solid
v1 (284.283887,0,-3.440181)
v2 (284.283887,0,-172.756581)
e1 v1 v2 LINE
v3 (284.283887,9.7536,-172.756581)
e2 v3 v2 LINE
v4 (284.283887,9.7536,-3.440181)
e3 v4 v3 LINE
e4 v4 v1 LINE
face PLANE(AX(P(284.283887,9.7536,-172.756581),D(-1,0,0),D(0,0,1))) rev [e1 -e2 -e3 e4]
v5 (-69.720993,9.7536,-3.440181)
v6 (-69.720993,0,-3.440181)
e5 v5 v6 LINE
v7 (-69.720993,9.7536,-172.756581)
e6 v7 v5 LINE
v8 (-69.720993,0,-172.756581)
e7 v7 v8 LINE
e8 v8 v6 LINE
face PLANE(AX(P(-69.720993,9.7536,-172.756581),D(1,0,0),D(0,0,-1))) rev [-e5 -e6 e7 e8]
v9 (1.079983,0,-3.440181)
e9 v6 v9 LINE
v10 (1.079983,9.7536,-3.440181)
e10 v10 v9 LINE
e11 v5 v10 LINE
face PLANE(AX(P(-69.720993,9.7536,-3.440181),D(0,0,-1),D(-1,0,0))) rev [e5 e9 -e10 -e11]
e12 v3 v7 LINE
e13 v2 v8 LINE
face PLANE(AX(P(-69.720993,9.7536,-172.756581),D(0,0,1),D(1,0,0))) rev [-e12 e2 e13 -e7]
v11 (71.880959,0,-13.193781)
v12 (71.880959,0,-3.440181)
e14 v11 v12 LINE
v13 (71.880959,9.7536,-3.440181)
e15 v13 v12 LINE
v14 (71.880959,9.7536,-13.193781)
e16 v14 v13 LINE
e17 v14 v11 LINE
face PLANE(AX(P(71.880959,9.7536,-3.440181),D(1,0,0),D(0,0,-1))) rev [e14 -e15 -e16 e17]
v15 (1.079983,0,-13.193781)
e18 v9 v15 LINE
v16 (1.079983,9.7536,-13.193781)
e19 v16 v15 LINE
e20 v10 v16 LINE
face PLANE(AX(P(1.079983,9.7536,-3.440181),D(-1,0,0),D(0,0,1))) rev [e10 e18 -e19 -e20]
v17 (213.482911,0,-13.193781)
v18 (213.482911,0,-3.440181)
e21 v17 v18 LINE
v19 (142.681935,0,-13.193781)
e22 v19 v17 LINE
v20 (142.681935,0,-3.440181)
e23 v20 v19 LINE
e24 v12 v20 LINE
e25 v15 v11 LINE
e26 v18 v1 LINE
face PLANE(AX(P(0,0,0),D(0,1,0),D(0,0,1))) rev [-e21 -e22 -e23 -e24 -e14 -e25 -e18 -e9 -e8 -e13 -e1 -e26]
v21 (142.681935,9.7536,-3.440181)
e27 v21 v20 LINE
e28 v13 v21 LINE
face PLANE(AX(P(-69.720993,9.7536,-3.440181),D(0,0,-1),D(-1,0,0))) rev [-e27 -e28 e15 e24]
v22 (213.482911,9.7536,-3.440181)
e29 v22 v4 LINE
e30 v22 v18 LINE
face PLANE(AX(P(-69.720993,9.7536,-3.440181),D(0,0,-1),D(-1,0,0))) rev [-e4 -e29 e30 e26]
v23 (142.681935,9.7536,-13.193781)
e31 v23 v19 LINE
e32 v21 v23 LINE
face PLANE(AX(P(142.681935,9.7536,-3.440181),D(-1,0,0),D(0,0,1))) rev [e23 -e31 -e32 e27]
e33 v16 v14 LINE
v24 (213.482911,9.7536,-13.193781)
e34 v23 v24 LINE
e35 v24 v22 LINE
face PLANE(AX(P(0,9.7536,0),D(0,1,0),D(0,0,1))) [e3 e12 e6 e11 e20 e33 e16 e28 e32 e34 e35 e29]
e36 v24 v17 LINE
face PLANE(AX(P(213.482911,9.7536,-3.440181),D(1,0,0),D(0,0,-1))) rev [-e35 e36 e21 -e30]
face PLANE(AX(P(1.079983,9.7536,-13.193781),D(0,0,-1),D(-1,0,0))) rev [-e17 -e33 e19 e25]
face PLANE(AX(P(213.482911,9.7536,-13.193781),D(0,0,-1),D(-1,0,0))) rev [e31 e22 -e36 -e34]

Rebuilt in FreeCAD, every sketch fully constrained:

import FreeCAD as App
import Part
import Sketcher
from FreeCAD import Vector
Q = App.Units.Quantity


def add_polygon(sketch, points):
    """Adds a closed chain of lines whose ends are joined by coincident constraints."""
    first, n = sketch.GeometryCount, len(points)
    for a, b in zip(points, points[1:] + points[:1]):
        sketch.addGeometry(Part.LineSegment(App.Vector(*a, 0), App.Vector(*b, 0)), False)
    for i in range(n):
        sketch.addConstraint(Sketcher.Constraint("Coincident", first + i, 2, first + (i + 1) % n, 1))

doc = App.newDocument("Part")
params = doc.addObject("Spreadsheet::Sheet", "Params")
for row, (alias, value) in enumerate([
    ("sketch1_height", "6.666 in"),
    ("pad1_length", "0.384 in"),
    ("sketch2_height", "0.384 in"),
], start=1):
    params.set(f"A{row}", alias)
    params.set(f"B{row}", "=" + value)
    params.setAlias(f"B{row}", alias)

body = doc.addObject("PartDesign::Body", "Body")

sketch1 = body.newObject("Sketcher::SketchObject", "Sketch")
sketch1.AttachmentSupport = (doc.getObject("XZ_Plane"), [""])
sketch1.MapMode = "FlatFace"
add_polygon(sketch1, [(-70, -173), (-70, -3), (284, -3), (284, -173)])
sketch1.addConstraint([
    Sketcher.Constraint("Vertical", 0),
    Sketcher.Constraint("Horizontal", 1),
    Sketcher.Constraint("Vertical", 2),
    Sketcher.Constraint("Horizontal", 3),
    Sketcher.Constraint("DistanceY", 0, 1, 0, 2, Q("6.666 in")),
    Sketcher.Constraint("DistanceX", 1, 1, 1, 2, Q("13.9372 in")),
    Sketcher.Constraint("DistanceY", 0, 2, -1, 1, 3.440181),
    Sketcher.Constraint("DistanceX", 0, 2, -1, 1, 69.720993),
])
sketch1.setExpression("Constraints[8]", "Params.sketch1_height")
pad1 = body.newObject("PartDesign::Pad", "Pad")
pad1.Profile = sketch1
pad1.setExpression("Length", "Params.pad1_length")
pad1.Reversed = True

sketch2 = body.newObject("Sketcher::SketchObject", "Sketch001")
sketch2.AttachmentSupport = (doc.getObject("XZ_Plane"), [""])
sketch2.MapMode = "FlatFace"
add_polygon(sketch2, [(143, -3), (143, -13), (213, -13), (213, -3)])
add_polygon(sketch2, [(1, -3), (1, -13), (72, -13), (72, -3)])
sketch2.addConstraint([
    Sketcher.Constraint("Vertical", 0),
    Sketcher.Constraint("Horizontal", 1),
    Sketcher.Constraint("Vertical", 2),
    Sketcher.Constraint("Horizontal", 3),
    Sketcher.Constraint("Vertical", 4),
    Sketcher.Constraint("Horizontal", 5),
    Sketcher.Constraint("Vertical", 6),
    Sketcher.Constraint("Horizontal", 7),
    Sketcher.Constraint("Horizontal", 1, 2, 4, 2),
    Sketcher.Constraint("Horizontal", 3, 2, 6, 2),
    Sketcher.Constraint("Equal", 3, 5),
    Sketcher.Constraint("DistanceY", 0, 2, 0, 1, Q("0.384 in")),
    Sketcher.Constraint("DistanceX", 1, 1, 1, 2, 70.800976),
    Sketcher.Constraint("DistanceY", 0, 2, -1, 1, 13.193781),
    Sketcher.Constraint("DistanceX", -1, 1, 1, 2, 213.482911),
    Sketcher.Constraint("DistanceX", -1, 1, 5, 2, 71.880959),
])
sketch2.setExpression("Constraints[19]", "Params.sketch2_height")
pocket1 = body.newObject("PartDesign::Pocket", "Pocket")
pocket1.Profile = sketch2
pocket1.Type = "ThroughAll"

doc.recompute()
